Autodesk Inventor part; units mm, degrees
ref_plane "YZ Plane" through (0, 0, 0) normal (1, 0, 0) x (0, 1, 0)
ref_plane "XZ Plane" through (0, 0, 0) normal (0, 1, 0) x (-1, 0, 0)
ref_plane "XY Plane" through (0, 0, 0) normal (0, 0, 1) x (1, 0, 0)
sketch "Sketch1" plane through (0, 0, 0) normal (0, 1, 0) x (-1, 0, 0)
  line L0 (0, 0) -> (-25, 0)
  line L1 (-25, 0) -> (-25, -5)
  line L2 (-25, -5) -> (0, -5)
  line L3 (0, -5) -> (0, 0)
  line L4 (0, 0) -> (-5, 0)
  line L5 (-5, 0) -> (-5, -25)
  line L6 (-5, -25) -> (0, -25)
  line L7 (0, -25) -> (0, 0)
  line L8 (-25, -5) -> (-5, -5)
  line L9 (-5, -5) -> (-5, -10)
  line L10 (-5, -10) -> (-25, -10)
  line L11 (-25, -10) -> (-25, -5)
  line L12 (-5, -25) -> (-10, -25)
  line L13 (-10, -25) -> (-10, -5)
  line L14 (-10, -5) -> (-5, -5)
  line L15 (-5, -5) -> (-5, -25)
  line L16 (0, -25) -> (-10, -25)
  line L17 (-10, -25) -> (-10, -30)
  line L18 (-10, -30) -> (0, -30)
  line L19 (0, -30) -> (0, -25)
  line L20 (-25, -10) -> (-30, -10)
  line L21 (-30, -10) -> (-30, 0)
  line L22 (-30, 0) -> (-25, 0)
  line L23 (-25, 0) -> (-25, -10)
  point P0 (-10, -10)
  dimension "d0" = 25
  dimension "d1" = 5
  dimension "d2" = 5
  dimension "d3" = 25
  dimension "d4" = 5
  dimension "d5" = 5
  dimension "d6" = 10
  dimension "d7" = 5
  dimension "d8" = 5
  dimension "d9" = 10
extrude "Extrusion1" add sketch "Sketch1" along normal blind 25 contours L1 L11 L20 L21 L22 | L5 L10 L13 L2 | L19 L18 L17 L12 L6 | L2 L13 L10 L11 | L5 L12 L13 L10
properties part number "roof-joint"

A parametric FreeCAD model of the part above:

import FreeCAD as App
import Part
import Sketcher

V = App.Vector
Q = App.Units.Quantity


def add_polygon(sketch, points):
    """Adds a closed chain of lines whose ends are joined by coincident constraints."""
    first, n = sketch.GeometryCount, len(points)
    for a, b in zip(points, points[1:] + points[:1]):
        sketch.addGeometry(Part.LineSegment(App.Vector(*a, 0), App.Vector(*b, 0)), False)
    for i in range(n):
        sketch.addConstraint(Sketcher.Constraint("Coincident", first + i, 2, first + (i + 1) % n, 1))

doc = App.newDocument("Part")
body = doc.addObject("PartDesign::Body", "Body")

# Sketch on XZ plane
sketch1 = body.newObject("Sketcher::SketchObject", "Sketch")
sketch1.AttachmentSupport = (doc.getObject("XZ_Plane"), [""])
sketch1.MapMode = "FlatFace"
add_polygon(sketch1, [(25, -5), (25, 0), (30, 0), (30, -10), (10, -10), (10, -30), (0, -30), (0, -25), (5, -25), (5, -5)])  # lines 0-9
sketch1.addConstraint(Sketcher.Constraint("Vertical", 0))
sketch1.addConstraint(Sketcher.Constraint("Horizontal", 1))
sketch1.addConstraint(Sketcher.Constraint("Vertical", 2))
sketch1.addConstraint(Sketcher.Constraint("Horizontal", 3))
sketch1.addConstraint(Sketcher.Constraint("Vertical", 4))
sketch1.addConstraint(Sketcher.Constraint("Horizontal", 5))
sketch1.addConstraint(Sketcher.Constraint("Vertical", 6))
sketch1.addConstraint(Sketcher.Constraint("Horizontal", 7))
sketch1.addConstraint(Sketcher.Constraint("Vertical", 8))
sketch1.addConstraint(Sketcher.Constraint("Horizontal", 9))
sketch1.addConstraint(Sketcher.Constraint("PointOnObject", 0, 2, -1))
sketch1.addConstraint(Sketcher.Constraint("PointOnObject", 5, 2, -2))
sketch1.addConstraint(Sketcher.Constraint("Equal", 1, 7))
sketch1.addConstraint(Sketcher.Constraint("Equal", 3, 9))
sketch1.addConstraint(Sketcher.Constraint("Equal", 7, 0))
sketch1.addConstraint(Sketcher.Constraint("Equal", 5, 2))
sketch1.addConstraint(Sketcher.Constraint("Equal", 9, 4))
sketch1.addConstraint(Sketcher.Constraint("Equal", 0, 6))
sketch1.addConstraint(Sketcher.Constraint("DistanceX", 1, 1, 1, 2, Q("5 mm")))
sketch1.addConstraint(Sketcher.Constraint("DistanceX", -1, 1, 0, 2, Q("25 mm")))
pad1 = body.newObject("PartDesign::Pad", "Pad")
pad1.Profile = sketch1
pad1.Length = 25
pad1.Reversed = True

doc.recompute()
